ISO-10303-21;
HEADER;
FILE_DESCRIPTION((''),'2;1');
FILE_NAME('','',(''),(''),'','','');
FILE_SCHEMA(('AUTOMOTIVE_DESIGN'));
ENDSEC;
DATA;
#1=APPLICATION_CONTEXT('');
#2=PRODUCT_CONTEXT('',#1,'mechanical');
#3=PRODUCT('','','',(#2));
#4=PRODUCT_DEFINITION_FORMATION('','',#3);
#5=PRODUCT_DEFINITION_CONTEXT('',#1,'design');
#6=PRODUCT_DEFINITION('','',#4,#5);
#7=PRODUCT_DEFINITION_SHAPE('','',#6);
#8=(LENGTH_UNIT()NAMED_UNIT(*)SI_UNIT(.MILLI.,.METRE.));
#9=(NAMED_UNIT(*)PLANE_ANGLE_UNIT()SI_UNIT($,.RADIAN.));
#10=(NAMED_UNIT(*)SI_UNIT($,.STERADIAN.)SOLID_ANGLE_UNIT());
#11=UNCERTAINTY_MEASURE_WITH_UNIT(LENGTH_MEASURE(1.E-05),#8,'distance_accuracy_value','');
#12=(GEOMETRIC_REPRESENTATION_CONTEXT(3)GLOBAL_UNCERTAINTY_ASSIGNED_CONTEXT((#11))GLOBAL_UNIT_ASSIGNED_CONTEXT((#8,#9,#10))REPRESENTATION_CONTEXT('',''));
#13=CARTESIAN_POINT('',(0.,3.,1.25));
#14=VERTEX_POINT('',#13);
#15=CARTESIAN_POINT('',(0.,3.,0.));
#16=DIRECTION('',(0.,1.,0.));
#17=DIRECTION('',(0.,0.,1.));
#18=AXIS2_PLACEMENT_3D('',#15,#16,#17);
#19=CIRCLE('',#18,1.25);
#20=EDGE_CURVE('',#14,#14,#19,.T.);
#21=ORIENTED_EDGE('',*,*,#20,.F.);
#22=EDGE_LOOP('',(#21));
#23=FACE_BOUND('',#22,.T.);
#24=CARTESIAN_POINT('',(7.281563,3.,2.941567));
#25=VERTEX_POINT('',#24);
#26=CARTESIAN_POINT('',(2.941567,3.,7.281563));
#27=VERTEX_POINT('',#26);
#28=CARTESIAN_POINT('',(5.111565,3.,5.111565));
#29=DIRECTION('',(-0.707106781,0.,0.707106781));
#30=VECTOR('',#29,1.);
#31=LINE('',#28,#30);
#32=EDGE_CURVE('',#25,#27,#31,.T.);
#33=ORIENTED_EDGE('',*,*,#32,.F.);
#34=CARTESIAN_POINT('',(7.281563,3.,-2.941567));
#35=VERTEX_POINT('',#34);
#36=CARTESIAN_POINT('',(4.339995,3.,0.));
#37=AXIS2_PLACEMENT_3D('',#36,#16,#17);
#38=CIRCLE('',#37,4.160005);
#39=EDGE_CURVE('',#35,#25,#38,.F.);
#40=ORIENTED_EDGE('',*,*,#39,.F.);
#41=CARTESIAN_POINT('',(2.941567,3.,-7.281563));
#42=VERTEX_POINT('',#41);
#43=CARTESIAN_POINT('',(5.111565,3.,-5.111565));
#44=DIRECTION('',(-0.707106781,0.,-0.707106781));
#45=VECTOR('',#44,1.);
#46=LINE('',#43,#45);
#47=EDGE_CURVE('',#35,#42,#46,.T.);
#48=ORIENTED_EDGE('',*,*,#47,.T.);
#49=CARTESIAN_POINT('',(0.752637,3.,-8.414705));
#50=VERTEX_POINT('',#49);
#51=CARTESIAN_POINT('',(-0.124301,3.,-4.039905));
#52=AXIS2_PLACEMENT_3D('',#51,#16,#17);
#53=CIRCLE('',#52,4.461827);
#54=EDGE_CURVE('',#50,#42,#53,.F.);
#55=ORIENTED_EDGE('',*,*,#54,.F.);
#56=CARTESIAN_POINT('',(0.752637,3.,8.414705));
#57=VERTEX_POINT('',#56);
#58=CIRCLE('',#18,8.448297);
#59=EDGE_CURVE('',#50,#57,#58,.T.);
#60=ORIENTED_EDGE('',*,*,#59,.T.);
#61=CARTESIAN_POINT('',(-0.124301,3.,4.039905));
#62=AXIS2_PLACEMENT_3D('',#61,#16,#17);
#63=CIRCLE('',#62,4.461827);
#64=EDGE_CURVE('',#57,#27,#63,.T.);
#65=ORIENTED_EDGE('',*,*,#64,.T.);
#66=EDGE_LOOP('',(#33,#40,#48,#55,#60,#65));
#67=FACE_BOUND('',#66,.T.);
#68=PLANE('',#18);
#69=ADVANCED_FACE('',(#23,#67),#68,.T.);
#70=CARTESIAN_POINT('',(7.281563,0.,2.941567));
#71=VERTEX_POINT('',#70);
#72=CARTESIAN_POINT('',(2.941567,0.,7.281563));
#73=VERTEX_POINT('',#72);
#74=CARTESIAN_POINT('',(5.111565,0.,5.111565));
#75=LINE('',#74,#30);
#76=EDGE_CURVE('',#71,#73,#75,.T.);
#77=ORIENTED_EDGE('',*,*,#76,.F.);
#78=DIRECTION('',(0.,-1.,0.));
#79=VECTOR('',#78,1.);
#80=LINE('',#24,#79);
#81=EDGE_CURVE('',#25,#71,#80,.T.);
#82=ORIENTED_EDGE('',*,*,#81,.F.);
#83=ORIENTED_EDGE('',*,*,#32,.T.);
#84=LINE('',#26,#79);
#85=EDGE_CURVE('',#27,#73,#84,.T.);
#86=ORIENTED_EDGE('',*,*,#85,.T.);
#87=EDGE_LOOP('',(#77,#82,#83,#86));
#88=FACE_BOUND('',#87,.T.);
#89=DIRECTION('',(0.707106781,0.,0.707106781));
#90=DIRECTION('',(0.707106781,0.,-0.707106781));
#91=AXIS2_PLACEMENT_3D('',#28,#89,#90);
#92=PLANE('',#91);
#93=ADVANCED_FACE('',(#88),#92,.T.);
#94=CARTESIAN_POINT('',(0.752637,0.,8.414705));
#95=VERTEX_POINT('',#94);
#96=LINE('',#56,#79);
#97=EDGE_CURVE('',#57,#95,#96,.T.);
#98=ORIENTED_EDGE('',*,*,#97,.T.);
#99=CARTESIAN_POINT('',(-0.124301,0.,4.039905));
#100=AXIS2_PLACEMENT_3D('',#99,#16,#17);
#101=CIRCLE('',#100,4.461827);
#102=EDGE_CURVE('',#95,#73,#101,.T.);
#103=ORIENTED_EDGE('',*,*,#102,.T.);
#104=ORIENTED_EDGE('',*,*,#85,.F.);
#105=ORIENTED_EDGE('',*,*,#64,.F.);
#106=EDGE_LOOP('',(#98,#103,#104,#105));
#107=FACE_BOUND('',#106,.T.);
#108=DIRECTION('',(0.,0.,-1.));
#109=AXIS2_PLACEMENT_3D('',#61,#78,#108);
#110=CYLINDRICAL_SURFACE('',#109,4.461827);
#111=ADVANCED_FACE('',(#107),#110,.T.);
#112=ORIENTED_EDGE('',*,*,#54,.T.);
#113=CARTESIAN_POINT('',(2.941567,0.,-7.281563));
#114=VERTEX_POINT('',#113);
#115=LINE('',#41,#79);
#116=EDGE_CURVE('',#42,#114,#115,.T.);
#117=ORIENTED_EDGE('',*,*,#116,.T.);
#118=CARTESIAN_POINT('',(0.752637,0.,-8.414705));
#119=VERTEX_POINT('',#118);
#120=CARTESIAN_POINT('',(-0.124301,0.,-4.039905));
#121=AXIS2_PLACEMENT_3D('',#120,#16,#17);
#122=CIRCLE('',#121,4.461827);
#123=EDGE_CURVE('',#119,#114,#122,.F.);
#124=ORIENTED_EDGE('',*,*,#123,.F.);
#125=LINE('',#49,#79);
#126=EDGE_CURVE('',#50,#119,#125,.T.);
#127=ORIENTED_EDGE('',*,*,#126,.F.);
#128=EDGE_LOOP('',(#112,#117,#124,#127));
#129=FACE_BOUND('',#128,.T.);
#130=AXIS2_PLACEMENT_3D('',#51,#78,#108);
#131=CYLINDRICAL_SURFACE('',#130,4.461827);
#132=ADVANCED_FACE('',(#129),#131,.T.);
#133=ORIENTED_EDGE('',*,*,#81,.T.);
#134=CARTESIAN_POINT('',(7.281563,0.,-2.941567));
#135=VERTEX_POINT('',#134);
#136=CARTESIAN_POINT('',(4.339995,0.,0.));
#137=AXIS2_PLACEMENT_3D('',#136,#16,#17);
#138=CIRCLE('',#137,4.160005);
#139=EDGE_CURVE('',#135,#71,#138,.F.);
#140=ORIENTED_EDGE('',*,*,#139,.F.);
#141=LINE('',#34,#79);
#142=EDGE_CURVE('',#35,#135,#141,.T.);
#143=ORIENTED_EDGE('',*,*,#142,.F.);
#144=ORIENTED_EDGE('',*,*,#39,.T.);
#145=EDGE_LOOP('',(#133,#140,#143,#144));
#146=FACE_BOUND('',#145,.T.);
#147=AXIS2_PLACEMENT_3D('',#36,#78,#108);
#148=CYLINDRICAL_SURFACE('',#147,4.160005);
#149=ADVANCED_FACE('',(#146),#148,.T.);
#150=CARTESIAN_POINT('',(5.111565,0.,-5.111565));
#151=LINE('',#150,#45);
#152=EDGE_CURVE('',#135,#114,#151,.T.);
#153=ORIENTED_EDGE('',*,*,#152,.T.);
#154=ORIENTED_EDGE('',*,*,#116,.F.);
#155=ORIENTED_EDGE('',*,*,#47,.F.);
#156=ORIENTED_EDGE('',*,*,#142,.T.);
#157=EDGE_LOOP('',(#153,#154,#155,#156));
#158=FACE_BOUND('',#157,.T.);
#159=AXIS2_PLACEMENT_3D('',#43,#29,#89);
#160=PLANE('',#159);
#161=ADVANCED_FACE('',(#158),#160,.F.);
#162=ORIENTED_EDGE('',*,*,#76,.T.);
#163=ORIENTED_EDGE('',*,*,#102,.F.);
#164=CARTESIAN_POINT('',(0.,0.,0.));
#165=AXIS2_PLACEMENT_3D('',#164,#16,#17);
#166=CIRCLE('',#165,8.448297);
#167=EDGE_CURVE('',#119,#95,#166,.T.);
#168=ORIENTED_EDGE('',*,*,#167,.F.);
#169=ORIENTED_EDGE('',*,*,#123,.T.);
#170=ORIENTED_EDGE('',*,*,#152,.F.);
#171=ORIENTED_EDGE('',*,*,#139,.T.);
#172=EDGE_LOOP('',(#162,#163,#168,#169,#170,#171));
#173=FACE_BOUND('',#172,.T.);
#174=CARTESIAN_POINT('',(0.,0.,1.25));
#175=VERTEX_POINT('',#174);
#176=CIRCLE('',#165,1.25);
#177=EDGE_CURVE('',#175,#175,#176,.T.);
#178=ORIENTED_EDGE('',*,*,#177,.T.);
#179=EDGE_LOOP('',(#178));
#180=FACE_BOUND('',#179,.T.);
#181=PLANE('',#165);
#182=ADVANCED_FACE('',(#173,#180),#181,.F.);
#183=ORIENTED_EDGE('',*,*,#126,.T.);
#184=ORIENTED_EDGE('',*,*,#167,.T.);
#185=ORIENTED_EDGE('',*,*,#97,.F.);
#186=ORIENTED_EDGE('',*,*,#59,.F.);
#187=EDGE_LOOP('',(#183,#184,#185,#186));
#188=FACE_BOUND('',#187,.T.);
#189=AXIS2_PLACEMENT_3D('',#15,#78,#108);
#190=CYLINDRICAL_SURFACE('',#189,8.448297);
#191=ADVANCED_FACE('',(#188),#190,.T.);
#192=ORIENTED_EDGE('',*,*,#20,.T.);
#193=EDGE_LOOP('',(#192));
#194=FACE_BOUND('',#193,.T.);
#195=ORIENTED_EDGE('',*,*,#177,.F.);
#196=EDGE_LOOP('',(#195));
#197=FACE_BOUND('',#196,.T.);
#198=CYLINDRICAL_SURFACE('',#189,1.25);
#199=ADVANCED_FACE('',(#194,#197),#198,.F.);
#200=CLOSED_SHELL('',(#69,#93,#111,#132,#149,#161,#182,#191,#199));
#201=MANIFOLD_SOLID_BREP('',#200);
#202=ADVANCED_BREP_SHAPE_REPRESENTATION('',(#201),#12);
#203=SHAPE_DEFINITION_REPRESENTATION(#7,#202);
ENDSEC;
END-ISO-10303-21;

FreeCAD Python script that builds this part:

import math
import FreeCAD as App
import Part
import Sketcher
Q = App.Units.Quantity

doc = App.newDocument("Part")
body = doc.addObject("PartDesign::Body", "Body")

sketch1 = body.newObject("Sketcher::SketchObject", "Sketch")
sketch1.AttachmentSupport = (doc.getObject("XZ_Plane"), [""])
sketch1.MapMode = "FlatFace"
sketch1.addGeometry([
    Part.ArcOfCircle(Part.Circle(App.Vector(0, 0, 0), App.Vector(0, 0, 1), 8.4), math.radians(85), math.radians(275)),
    Part.ArcOfCircle(Part.Circle(App.Vector(-0.1, 4, 0), App.Vector(0, 0, 1), 4.5), math.radians(47), math.radians(79)),
    Part.LineSegment(App.Vector(2.9, 7.3, 0), App.Vector(7.3, 2.9, 0)),
    Part.ArcOfCircle(Part.Circle(App.Vector(4.3, 0, 0), App.Vector(0, 0, 1), 4.2), math.radians(-45), math.radians(45)),
    Part.LineSegment(App.Vector(7.3, -2.9, 0), App.Vector(2.9, -7.3, 0)),
    Part.ArcOfCircle(Part.Circle(App.Vector(-0.1, -4, 0), App.Vector(0, 0, 1), 4.5), math.radians(-79), math.radians(-47)),
    Part.Circle(App.Vector(0, 0, 0), App.Vector(0, 0, 1), 1.2),
], False)
sketch1.addConstraint([
    Sketcher.Constraint("Coincident", 0, 1, 1, 2),
    Sketcher.Constraint("Coincident", 1, 1, 2, 1),
    Sketcher.Constraint("Tangent", 2, 2, 3, 2),
    Sketcher.Constraint("Tangent", 3, 1, 4, 1),
    Sketcher.Constraint("Coincident", 4, 2, 5, 2),
    Sketcher.Constraint("Coincident", 5, 1, 0, 2),
    Sketcher.Constraint("Coincident", 0, 3, -1, 1),
    Sketcher.Constraint("Coincident", 6, 3, -1, 1),
    Sketcher.Constraint("Equal", 1, 5),
    Sketcher.Constraint("Symmetric", 1, 3, 5, 3, -1),
    Sketcher.Constraint("Symmetric", 2, 2, 3, 1, -1),
    Sketcher.Constraint("Perpendicular", 2, 4),
    Sketcher.Constraint("Diameter", 6, Q("2.5 mm")),
    Sketcher.Constraint("Radius", 0, Q("8.448297 mm")),
    Sketcher.Constraint("Radius", 1, Q("4.461827 mm")),
    Sketcher.Constraint("Radius", 3, Q("4.160005 mm")),
    Sketcher.Constraint("DistanceX", 1, 3, -1, 1, Q("0.124301 mm")),
    Sketcher.Constraint("DistanceY", 1, 3, 0, 1, Q("4.3748 mm")),
    Sketcher.Constraint("Distance", 2, Q("6.13768 mm")),
])
pad1 = body.newObject("PartDesign::Pad", "Pad")
pad1.Profile = sketch1
pad1.Length = 3
pad1.Reversed = True

doc.recompute()
